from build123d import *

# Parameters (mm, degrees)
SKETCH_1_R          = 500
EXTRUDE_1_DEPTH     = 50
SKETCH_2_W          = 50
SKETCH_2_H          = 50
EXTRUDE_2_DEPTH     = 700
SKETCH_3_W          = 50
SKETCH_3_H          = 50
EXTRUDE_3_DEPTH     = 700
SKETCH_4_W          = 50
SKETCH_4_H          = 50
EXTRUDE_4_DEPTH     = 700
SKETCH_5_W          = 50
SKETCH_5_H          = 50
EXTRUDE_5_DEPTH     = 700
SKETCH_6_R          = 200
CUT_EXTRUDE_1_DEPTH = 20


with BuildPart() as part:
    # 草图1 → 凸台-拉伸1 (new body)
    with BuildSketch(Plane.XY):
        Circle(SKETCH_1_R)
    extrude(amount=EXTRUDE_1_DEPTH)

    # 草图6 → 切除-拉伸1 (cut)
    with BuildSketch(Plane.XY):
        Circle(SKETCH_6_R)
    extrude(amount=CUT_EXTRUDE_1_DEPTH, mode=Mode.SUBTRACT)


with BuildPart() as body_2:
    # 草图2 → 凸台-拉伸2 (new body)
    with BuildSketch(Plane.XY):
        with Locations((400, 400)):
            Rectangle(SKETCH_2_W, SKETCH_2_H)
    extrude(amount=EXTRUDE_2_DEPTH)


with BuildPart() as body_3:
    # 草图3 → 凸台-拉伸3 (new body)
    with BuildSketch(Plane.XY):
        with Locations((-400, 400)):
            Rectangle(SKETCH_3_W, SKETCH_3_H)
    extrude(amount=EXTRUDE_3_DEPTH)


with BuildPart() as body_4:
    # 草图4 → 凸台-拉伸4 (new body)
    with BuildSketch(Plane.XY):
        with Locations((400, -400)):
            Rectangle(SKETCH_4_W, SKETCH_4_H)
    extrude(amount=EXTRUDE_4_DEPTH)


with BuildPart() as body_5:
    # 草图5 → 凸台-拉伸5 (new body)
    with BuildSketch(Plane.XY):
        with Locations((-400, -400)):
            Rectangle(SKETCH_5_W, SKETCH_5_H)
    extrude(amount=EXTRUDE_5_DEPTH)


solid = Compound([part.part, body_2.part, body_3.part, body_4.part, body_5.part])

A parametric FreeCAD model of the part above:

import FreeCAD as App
import Part
import Sketcher
Q = App.Units.Quantity


def add_polygon(sketch, points):
    """Adds a closed chain of lines whose ends are joined by coincident constraints."""
    first, n = sketch.GeometryCount, len(points)
    for a, b in zip(points, points[1:] + points[:1]):
        sketch.addGeometry(Part.LineSegment(App.Vector(*a, 0), App.Vector(*b, 0)), False)
    for i in range(n):
        sketch.addConstraint(Sketcher.Constraint("Coincident", first + i, 2, first + (i + 1) % n, 1))

doc = App.newDocument("Part")
params = doc.addObject("Spreadsheet::Sheet", "Params")
for row, (alias, value) in enumerate([
    ("sketch1_diameter", "1000 mm"),
    ("pad1_length", "50 mm"),
    ("sketch2_diameter", "400 mm"),
    ("pocket1_length", "20 mm"),
    ("sketch3_width", "50 mm"),
    ("pad2_length", "700 mm"),
    ("sketch4_width", "50 mm"),
    ("pad3_length", "700 mm"),
    ("sketch5_width", "50 mm"),
    ("pad4_length", "700 mm"),
    ("sketch6_width", "50 mm"),
    ("pad5_length", "700 mm"),
], start=1):
    params.set(f"A{row}", alias)
    params.set(f"B{row}", "=" + value)
    params.setAlias(f"B{row}", alias)

body = doc.addObject("PartDesign::Body", "Body")

sketch1 = body.newObject("Sketcher::SketchObject", "Sketch")
sketch1.AttachmentSupport = (doc.getObject("XY_Plane"), [""])
sketch1.MapMode = "FlatFace"
sketch1.addGeometry(Part.Circle(App.Vector(0, 0, 0), App.Vector(0, 0, 1), 500), False)
sketch1.addConstraint([
    Sketcher.Constraint("Coincident", 0, 3, -1, 1),
    Sketcher.Constraint("Diameter", 0, Q("1000 mm")),
])
sketch1.setExpression("Constraints[1]", "Params.sketch1_diameter")
pad1 = body.newObject("PartDesign::Pad", "Pad")
pad1.Profile = sketch1
pad1.setExpression("Length", "Params.pad1_length")

sketch2 = body.newObject("Sketcher::SketchObject", "Sketch001")
sketch2.AttachmentSupport = (doc.getObject("XY_Plane"), [""])
sketch2.MapMode = "FlatFace"
sketch2.addGeometry(Part.Circle(App.Vector(0, 0, 0), App.Vector(0, 0, 1), 200), False)
sketch2.addConstraint([
    Sketcher.Constraint("Coincident", 0, 3, -1, 1),
    Sketcher.Constraint("Diameter", 0, Q("400 mm")),
])
sketch2.setExpression("Constraints[1]", "Params.sketch2_diameter")
pocket1 = body.newObject("PartDesign::Pocket", "Pocket")
pocket1.Profile = sketch2
pocket1.setExpression("Length", "Params.pocket1_length")
pocket1.Reversed = True
body2 = doc.addObject("PartDesign::Body", "Body001")

sketch3 = body2.newObject("Sketcher::SketchObject", "Sketch002")
sketch3.AttachmentSupport = (doc.getObject("XY_Plane001"), [""])
sketch3.MapMode = "FlatFace"
add_polygon(sketch3, [(375, 425), (375, 375), (425, 375), (425, 425)])
sketch3.addConstraint([
    Sketcher.Constraint("Vertical", 0),
    Sketcher.Constraint("Horizontal", 1),
    Sketcher.Constraint("Vertical", 2),
    Sketcher.Constraint("Horizontal", 3),
    Sketcher.Constraint("Equal", 3, 0),
    Sketcher.Constraint("DistanceX", 1, 1, 1, 2, Q("50 mm")),
    Sketcher.Constraint("DistanceX", -1, 1, 0, 2, Q("375 mm")),
    Sketcher.Constraint("DistanceY", -1, 1, 0, 2, Q("375 mm")),
])
sketch3.setExpression("Constraints[9]", "Params.sketch3_width")
pad2 = body2.newObject("PartDesign::Pad", "Pad001")
pad2.Profile = sketch3
pad2.setExpression("Length", "Params.pad2_length")
body3 = doc.addObject("PartDesign::Body", "Body002")

sketch4 = body3.newObject("Sketcher::SketchObject", "Sketch003")
sketch4.AttachmentSupport = (doc.getObject("XY_Plane002"), [""])
sketch4.MapMode = "FlatFace"
add_polygon(sketch4, [(-425, 425), (-425, 375), (-375, 375), (-375, 425)])
sketch4.addConstraint([
    Sketcher.Constraint("Vertical", 0),
    Sketcher.Constraint("Horizontal", 1),
    Sketcher.Constraint("Vertical", 2),
    Sketcher.Constraint("Horizontal", 3),
    Sketcher.Constraint("Equal", 3, 0),
    Sketcher.Constraint("DistanceX", 1, 1, 1, 2, Q("50 mm")),
    Sketcher.Constraint("DistanceX", 0, 2, -1, 1, Q("425 mm")),
    Sketcher.Constraint("DistanceY", -1, 1, 0, 2, Q("375 mm")),
])
sketch4.setExpression("Constraints[9]", "Params.sketch4_width")
pad3 = body3.newObject("PartDesign::Pad", "Pad002")
pad3.Profile = sketch4
pad3.setExpression("Length", "Params.pad3_length")
body4 = doc.addObject("PartDesign::Body", "Body003")

sketch5 = body4.newObject("Sketcher::SketchObject", "Sketch004")
sketch5.AttachmentSupport = (doc.getObject("XY_Plane003"), [""])
sketch5.MapMode = "FlatFace"
add_polygon(sketch5, [(375, -375), (375, -425), (425, -425), (425, -375)])
sketch5.addConstraint([
    Sketcher.Constraint("Vertical", 0),
    Sketcher.Constraint("Horizontal", 1),
    Sketcher.Constraint("Vertical", 2),
    Sketcher.Constraint("Horizontal", 3),
    Sketcher.Constraint("Equal", 3, 0),
    Sketcher.Constraint("DistanceX", 1, 1, 1, 2, Q("50 mm")),
    Sketcher.Constraint("DistanceX", -1, 1, 0, 2, Q("375 mm")),
    Sketcher.Constraint("DistanceY", 0, 2, -1, 1, Q("425 mm")),
])
sketch5.setExpression("Constraints[9]", "Params.sketch5_width")
pad4 = body4.newObject("PartDesign::Pad", "Pad003")
pad4.Profile = sketch5
pad4.setExpression("Length", "Params.pad4_length")
body5 = doc.addObject("PartDesign::Body", "Body004")

sketch6 = body5.newObject("Sketcher::SketchObject", "Sketch005")
sketch6.AttachmentSupport = (doc.getObject("XY_Plane004"), [""])
sketch6.MapMode = "FlatFace"
add_polygon(sketch6, [(-425, -375), (-425, -425), (-375, -425), (-375, -375)])
sketch6.addConstraint([
    Sketcher.Constraint("Vertical", 0),
    Sketcher.Constraint("Horizontal", 1),
    Sketcher.Constraint("Vertical", 2),
    Sketcher.Constraint("Horizontal", 3),
    Sketcher.Constraint("Equal", 3, 0),
    Sketcher.Constraint("DistanceX", 1, 1, 1, 2, Q("50 mm")),
    Sketcher.Constraint("DistanceX", 0, 2, -1, 1, Q("425 mm")),
    Sketcher.Constraint("DistanceY", 0, 2, -1, 1, Q("425 mm")),
])
sketch6.setExpression("Constraints[9]", "Params.sketch6_width")
pad5 = body5.newObject("PartDesign::Pad", "Pad004")
pad5.Profile = sketch6
pad5.setExpression("Length", "Params.pad5_length")

doc.recompute()
